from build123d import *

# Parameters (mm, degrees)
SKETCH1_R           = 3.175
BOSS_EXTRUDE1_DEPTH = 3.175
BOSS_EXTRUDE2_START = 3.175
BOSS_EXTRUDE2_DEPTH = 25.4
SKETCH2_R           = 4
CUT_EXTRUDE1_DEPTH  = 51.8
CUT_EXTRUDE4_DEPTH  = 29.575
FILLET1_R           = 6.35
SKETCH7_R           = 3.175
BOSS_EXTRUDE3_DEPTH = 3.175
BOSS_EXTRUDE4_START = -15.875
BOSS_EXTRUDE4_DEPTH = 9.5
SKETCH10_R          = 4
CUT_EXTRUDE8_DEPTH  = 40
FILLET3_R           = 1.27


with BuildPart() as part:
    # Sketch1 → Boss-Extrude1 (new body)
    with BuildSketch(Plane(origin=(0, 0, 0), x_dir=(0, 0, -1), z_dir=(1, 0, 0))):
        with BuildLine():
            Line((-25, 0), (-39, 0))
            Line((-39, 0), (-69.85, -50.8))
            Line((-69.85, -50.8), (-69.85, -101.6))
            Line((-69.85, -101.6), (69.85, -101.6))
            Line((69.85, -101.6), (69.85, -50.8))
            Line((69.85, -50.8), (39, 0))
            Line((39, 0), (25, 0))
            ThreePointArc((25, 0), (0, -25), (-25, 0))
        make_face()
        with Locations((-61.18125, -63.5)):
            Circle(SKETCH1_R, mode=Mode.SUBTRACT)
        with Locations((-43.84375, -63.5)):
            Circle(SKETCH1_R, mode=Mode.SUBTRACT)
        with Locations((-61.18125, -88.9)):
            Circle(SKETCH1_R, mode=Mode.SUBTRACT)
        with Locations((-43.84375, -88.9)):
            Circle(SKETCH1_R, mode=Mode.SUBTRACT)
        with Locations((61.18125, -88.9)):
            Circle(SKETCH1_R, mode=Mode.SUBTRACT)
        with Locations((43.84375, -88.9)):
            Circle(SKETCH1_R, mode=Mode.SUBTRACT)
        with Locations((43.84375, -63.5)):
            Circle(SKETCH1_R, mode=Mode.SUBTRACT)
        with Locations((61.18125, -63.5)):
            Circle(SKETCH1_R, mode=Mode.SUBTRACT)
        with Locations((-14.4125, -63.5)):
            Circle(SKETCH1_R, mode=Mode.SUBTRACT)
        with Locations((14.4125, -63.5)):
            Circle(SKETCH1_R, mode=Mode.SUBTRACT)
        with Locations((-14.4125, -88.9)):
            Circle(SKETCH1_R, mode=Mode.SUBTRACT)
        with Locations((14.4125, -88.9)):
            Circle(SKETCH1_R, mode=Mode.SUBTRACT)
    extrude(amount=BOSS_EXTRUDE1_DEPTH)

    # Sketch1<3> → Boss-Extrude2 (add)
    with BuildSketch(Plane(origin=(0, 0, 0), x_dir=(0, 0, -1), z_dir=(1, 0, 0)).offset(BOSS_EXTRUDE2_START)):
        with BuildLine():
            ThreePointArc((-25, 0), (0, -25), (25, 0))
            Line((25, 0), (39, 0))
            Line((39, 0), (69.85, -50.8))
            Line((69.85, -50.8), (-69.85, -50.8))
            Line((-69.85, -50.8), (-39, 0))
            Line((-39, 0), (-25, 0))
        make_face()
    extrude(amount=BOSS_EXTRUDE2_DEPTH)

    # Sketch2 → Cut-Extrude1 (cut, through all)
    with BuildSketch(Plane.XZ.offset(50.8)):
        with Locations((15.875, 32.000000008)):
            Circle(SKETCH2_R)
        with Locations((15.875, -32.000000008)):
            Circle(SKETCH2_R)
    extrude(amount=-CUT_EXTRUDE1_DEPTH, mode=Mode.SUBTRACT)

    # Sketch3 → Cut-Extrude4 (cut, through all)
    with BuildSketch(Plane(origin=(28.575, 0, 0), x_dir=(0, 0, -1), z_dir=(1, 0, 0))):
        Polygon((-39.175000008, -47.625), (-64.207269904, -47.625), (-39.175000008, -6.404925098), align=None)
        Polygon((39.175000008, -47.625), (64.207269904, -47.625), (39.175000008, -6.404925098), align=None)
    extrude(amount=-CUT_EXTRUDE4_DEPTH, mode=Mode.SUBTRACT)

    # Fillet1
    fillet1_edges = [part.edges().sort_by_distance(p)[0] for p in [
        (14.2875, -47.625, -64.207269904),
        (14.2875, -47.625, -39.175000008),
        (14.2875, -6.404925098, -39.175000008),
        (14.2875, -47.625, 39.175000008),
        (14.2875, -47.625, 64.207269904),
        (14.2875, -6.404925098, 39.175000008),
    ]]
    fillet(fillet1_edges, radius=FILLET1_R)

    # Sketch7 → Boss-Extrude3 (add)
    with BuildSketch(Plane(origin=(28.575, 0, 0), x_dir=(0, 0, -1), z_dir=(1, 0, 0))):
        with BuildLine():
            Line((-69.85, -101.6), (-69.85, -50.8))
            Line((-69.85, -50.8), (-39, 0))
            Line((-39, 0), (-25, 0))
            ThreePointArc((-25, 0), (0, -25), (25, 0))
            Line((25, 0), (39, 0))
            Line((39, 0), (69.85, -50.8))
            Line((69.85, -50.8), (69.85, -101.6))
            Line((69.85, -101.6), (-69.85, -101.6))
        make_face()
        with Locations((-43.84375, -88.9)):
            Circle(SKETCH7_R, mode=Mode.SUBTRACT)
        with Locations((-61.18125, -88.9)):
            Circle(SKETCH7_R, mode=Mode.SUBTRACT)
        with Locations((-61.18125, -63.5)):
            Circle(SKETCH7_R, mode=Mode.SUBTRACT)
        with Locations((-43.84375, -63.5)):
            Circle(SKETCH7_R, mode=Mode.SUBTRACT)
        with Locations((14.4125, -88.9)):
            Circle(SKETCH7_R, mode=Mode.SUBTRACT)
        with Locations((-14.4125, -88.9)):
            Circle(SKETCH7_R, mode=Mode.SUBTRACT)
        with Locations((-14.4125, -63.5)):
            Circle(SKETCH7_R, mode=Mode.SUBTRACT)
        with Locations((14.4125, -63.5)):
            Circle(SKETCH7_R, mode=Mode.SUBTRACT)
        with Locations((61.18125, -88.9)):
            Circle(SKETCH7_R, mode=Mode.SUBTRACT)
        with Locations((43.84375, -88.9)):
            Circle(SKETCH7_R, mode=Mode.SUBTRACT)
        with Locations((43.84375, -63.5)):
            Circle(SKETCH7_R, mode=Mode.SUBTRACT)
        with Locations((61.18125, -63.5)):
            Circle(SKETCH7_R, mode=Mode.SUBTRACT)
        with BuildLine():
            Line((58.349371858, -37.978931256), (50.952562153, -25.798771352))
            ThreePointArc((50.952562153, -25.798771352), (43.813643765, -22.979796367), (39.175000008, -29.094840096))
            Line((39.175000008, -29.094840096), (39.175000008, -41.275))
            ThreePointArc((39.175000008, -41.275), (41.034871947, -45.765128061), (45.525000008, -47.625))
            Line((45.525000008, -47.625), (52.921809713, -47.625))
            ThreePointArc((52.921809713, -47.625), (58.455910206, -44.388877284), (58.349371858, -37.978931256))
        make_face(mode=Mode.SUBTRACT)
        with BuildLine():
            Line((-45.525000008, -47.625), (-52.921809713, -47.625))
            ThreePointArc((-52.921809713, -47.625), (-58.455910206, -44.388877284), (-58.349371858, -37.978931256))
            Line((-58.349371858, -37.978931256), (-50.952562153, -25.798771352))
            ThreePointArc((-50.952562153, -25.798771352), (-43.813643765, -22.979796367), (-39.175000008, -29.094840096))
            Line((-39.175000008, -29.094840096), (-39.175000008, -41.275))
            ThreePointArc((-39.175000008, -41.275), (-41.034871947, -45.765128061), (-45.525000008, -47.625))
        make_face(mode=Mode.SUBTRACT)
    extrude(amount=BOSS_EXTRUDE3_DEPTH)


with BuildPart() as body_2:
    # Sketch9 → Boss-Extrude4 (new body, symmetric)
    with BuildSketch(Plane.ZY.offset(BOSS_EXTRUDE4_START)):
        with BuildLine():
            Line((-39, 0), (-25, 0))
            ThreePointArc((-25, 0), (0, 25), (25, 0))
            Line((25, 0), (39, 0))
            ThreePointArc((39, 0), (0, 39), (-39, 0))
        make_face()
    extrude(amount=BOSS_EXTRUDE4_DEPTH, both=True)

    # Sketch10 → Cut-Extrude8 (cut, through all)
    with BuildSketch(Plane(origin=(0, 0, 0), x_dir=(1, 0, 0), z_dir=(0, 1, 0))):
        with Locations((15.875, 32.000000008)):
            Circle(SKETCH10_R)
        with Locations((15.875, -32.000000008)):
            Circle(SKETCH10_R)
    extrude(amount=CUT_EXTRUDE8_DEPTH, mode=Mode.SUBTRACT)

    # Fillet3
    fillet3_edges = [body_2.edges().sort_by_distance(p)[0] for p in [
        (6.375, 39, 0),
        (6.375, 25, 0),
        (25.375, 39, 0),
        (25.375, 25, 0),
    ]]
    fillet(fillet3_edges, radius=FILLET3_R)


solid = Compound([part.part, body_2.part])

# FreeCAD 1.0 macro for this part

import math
import FreeCAD as App
import Part
import Sketcher

V = App.Vector


def edges_at(feature, points):
    """Names of the edges that pass closest to the given points."""
    edges = feature.Shape.Edges
    near = lambda p: min(range(len(edges)), key=lambda i: edges[i].distToShape(Part.Vertex(*p))[0])
    return sorted({f"Edge{near(p) + 1}" for p in points})

doc = App.newDocument("Part")
body = doc.addObject("PartDesign::Body", "Body")

# Sketch on YZ plane
sketch1 = body.newObject("Sketcher::SketchObject", "Sketch")
sketch1.AttachmentSupport = (doc.getObject("YZ_Plane"), [""])
sketch1.MapMode = "FlatFace"
sketch1.addGeometry([
    Part.LineSegment(V(0, 25, 0), V(0, 39, 0)),  # 0
    Part.LineSegment(V(0, 39, 0), V(-50.8, 69.8, 0)),  # 1
    Part.LineSegment(V(-50.8, 69.8, 0), V(-101.6, 69.8, 0)),  # 2
    Part.LineSegment(V(-101.6, 69.8, 0), V(-101.6, -69.8, 0)),  # 3
    Part.LineSegment(V(-101.6, -69.8, 0), V(-50.8, -69.8, 0)),  # 4
    Part.LineSegment(V(-50.8, -69.8, 0), V(0, -39, 0)),  # 5
    Part.LineSegment(V(0, -39, 0), V(0, -25, 0)),  # 6
    Part.ArcOfCircle(Part.Circle(V(0, 0, 0), V(0, 0, 1), 25), math.radians(90), math.radians(270)),  # 7
    Part.Circle(V(-88.9, 61.2, 0), V(0, 0, 1), 3.2),  # 8
    Part.Circle(V(-88.9, 43.8, 0), V(0, 0, 1), 3.2),  # 9
    Part.Circle(V(-88.9, 14.4, 0), V(0, 0, 1), 3.2),  # 10
    Part.Circle(V(-88.9, -14.4, 0), V(0, 0, 1), 3.2),  # 11
    Part.Circle(V(-88.9, -43.8, 0), V(0, 0, 1), 3.2),  # 12
    Part.Circle(V(-88.9, -61.2, 0), V(0, 0, 1), 3.2),  # 13
    Part.Circle(V(-63.5, 61.2, 0), V(0, 0, 1), 3.2),  # 14
    Part.Circle(V(-63.5, 43.8, 0), V(0, 0, 1), 3.2),  # 15
    Part.Circle(V(-63.5, 14.4, 0), V(0, 0, 1), 3.2),  # 16
    Part.Circle(V(-63.5, -14.4, 0), V(0, 0, 1), 3.2),  # 17
    Part.Circle(V(-63.5, -43.8, 0), V(0, 0, 1), 3.2),  # 18
    Part.Circle(V(-63.5, -61.2, 0), V(0, 0, 1), 3.2),  # 19
], False)
sketch1.addConstraint([
    Sketcher.Constraint("Coincident", 0, 2, 1, 1),
    Sketcher.Constraint("Coincident", 1, 2, 2, 1),
    Sketcher.Constraint("Coincident", 2, 2, 3, 1),
    Sketcher.Constraint("Coincident", 3, 2, 4, 1),
    Sketcher.Constraint("Coincident", 4, 2, 5, 1),
    Sketcher.Constraint("Coincident", 5, 2, 6, 1),
    Sketcher.Constraint("Coincident", 6, 2, 7, 2),
    Sketcher.Constraint("Coincident", 7, 1, 0, 1),
    Sketcher.Constraint("Vertical", 0),
    Sketcher.Constraint("Horizontal", 2),
    Sketcher.Constraint("Vertical", 3),
    Sketcher.Constraint("Horizontal", 4),
    Sketcher.Constraint("Vertical", 6),
    Sketcher.Constraint("Coincident", 7, 3, -1, 1),
    Sketcher.Constraint("Equal", 8, 9),
    Sketcher.Constraint("Equal", 9, 10),
    Sketcher.Constraint("Equal", 10, 11),
    Sketcher.Constraint("Equal", 11, 12),
    Sketcher.Constraint("Equal", 12, 13),
    Sketcher.Constraint("Equal", 13, 14),
    Sketcher.Constraint("Equal", 14, 15),
    Sketcher.Constraint("Equal", 15, 16),
    Sketcher.Constraint("Equal", 16, 17),
    Sketcher.Constraint("Equal", 17, 18),
    Sketcher.Constraint("Equal", 18, 19),
    Sketcher.Constraint("Symmetric", 0, 2, 5, 2, -1, 1),
    Sketcher.Constraint("Symmetric", 10, 3, 11, 3, -1),
    Sketcher.Constraint("Symmetric", 9, 3, 12, 3, -1),
    Sketcher.Constraint("Symmetric", 8, 3, 13, 3, -1),
    Sketcher.Constraint("Symmetric", 16, 3, 17, 3, -1),
    Sketcher.Constraint("Symmetric", 15, 3, 18, 3, -1),
    Sketcher.Constraint("Symmetric", 14, 3, 19, 3, -1),
    Sketcher.Constraint("Symmetric", 1, 2, 4, 2, -1),
    Sketcher.Constraint("PointOnObject", 0, 2, -2),
    Sketcher.Constraint("Horizontal", 8, 3, 14, 3),
    Sketcher.Constraint("Horizontal", 9, 3, 15, 3),
    Sketcher.Constraint("Horizontal", 10, 3, 16, 3),
    Sketcher.Constraint("Vertical", 8, 3, 9, 3),
    Sketcher.Constraint("Vertical", 9, 3, 10, 3),
    Sketcher.Constraint("Vertical", 14, 3, 15, 3),
    Sketcher.Constraint("Vertical", 15, 3, 16, 3),
    Sketcher.Constraint("Radius", 7, 25.0),
    Sketcher.Constraint("Diameter", 8, 6.35),
    Sketcher.Constraint("DistanceY", 0, 1, 0, 2, 14.0),
    Sketcher.Constraint("DistanceX", 2, 2, 2, 1, 50.8),
    Sketcher.Constraint("DistanceY", 3, 2, 3, 1, 139.7),
    Sketcher.Constraint("DistanceX", 8, 3, -1, 1, 88.9),
    Sketcher.Constraint("DistanceX", 14, 3, -1, 1, 63.5),
    Sketcher.Constraint("DistanceX", 1, 2, -1, 1, 50.8),
    Sketcher.Constraint("DistanceY", 11, 3, 10, 3, 28.825),
    Sketcher.Constraint("DistanceY", 12, 3, 8, 3, 105.025),
    Sketcher.Constraint("DistanceY", 9, 3, 8, 3, 17.3375),
])
pad1 = body.newObject("PartDesign::Pad", "Pad")
pad1.Profile = sketch1
pad1.Length = 3.175

# Sketch on YZ plane
sketch2 = body.newObject("Sketcher::SketchObject", "Sketch001")
sketch2.AttachmentSupport = (doc.getObject("YZ_Plane"), [""])
sketch2.MapMode = "FlatFace"
sketch2.AttachmentOffset = App.Placement(V(0, 0, 3.175), App.Rotation())
sketch2.addGeometry([
    Part.ArcOfCircle(Part.Circle(V(0, 0, 0), V(0, 0, 1), 25), math.radians(90), math.radians(270)),  # 0
    Part.LineSegment(V(0, 25, 0), V(0, 39, 0)),  # 1
    Part.LineSegment(V(0, 39, 0), V(-51, 70, 0)),  # 2
    Part.LineSegment(V(-51, 70, 0), V(-51, -70, 0)),  # 3
    Part.LineSegment(V(-51, -70, 0), V(0, -39, 0)),  # 4
    Part.LineSegment(V(0, -39, 0), V(0, -25, 0)),  # 5
], False)
sketch2.addConstraint([
    Sketcher.Constraint("Coincident", 0, 1, 1, 1),
    Sketcher.Constraint("Coincident", 1, 2, 2, 1),
    Sketcher.Constraint("Coincident", 2, 2, 3, 1),
    Sketcher.Constraint("Coincident", 3, 2, 4, 1),
    Sketcher.Constraint("Coincident", 4, 2, 5, 1),
    Sketcher.Constraint("Coincident", 5, 2, 0, 2),
    Sketcher.Constraint("Vertical", 1),
    Sketcher.Constraint("Vertical", 3),
    Sketcher.Constraint("Vertical", 5),
    Sketcher.Constraint("Coincident", 0, 3, -1, 1),
    Sketcher.Constraint("Symmetric", 1, 2, 4, 2, -1, 1),
    Sketcher.Constraint("PointOnObject", 0, 1, -2),
    Sketcher.Constraint("Equal", 2, 4),
    Sketcher.Constraint("Radius", 0, 25.0),
    Sketcher.Constraint("DistanceY", 1, 1, 1, 2, 14.0),
    Sketcher.Constraint("DistanceY", 3, 2, 3, 1, 139.7),
    Sketcher.Constraint("DistanceX", 2, 2, -1, 1, 50.8),
])
pad2 = body.newObject("PartDesign::Pad", "Pad001")
pad2.Profile = sketch2
pad2.Length = 25.4

# Sketch on XZ plane
sketch3 = body.newObject("Sketcher::SketchObject", "Sketch002")
sketch3.AttachmentSupport = (doc.getObject("XZ_Plane"), [""])
sketch3.MapMode = "FlatFace"
sketch3.AttachmentOffset = App.Placement(V(0, 0, 50.8), App.Rotation())
sketch3.addGeometry([
    Part.Circle(V(15.9, 32, 0), V(0, 0, 1), 4),
    Part.Circle(V(15.9, -32, 0), V(0, 0, 1), 4),
], False)
sketch3.addConstraint([
    Sketcher.Constraint("Equal", 0, 1),
    Sketcher.Constraint("Symmetric", 0, 3, 1, 3, -1),
    Sketcher.Constraint("Diameter", 0, 8.0),
    Sketcher.Constraint("DistanceY", -1, 1, 0, 3, 32.0),
    Sketcher.Constraint("DistanceX", -1, 1, 0, 3, 15.875),
])
pocket1 = body.newObject("PartDesign::Pocket", "Pocket")
pocket1.Profile = sketch3
pocket1.Type = "ThroughAll"

# Sketch on YZ plane
sketch4 = body.newObject("Sketcher::SketchObject", "Sketch003")
sketch4.AttachmentSupport = (doc.getObject("YZ_Plane"), [""])
sketch4.MapMode = "FlatFace"
sketch4.AttachmentOffset = App.Placement(V(0, 0, 28.575), App.Rotation())
sketch4.addGeometry([
    Part.LineSegment(V(-48, 64, 0), V(-48, 39, 0)),  # 0
    Part.LineSegment(V(-48, 39, 0), V(-6, 39, 0)),  # 1
    Part.LineSegment(V(-6, 39, 0), V(-48, 64, 0)),  # 2
    Part.LineSegment(V(-48, -39, 0), V(-48, -64, 0)),  # 3
    Part.LineSegment(V(-48, -64, 0), V(-6, -39, 0)),  # 4
    Part.LineSegment(V(-6, -39, 0), V(-48, -39, 0)),  # 5
], False)
sketch4.addConstraint([
    Sketcher.Constraint("Coincident", 0, 2, 1, 1),
    Sketcher.Constraint("Coincident", 1, 2, 2, 1),
    Sketcher.Constraint("Coincident", 2, 2, 0, 1),
    Sketcher.Constraint("Coincident", 3, 2, 4, 1),
    Sketcher.Constraint("Coincident", 4, 2, 5, 1),
    Sketcher.Constraint("Coincident", 5, 2, 3, 1),
    Sketcher.Constraint("Vertical", 0),
    Sketcher.Constraint("Horizontal", 1),
    Sketcher.Constraint("Vertical", 3),
    Sketcher.Constraint("Horizontal", 5),
    Sketcher.Constraint("Symmetric", 2, 2, 3, 2, -1),
    Sketcher.Constraint("Symmetric", 1, 2, 4, 2, -1),
    Sketcher.Constraint("DistanceY", 4, 2, 1, 2, 78.35),
    Sketcher.Constraint("DistanceX", 0, 2, -1, 1, 47.625),
    Sketcher.Constraint("DistanceY", 0, 2, 0, 1, 25.03227),
    Sketcher.Constraint("DistanceX", 1, 1, 1, 2, 41.220075),
])
pocket2 = body.newObject("PartDesign::Pocket", "Pocket001")
pocket2.Profile = sketch4
pocket2.Type = "ThroughAll"
doc.recompute()

fillet = body.newObject("PartDesign::Fillet", "Fillet")
fillet.Base = (pocket2, edges_at(pocket2, [
    (14.287, -47.625, -64.207),
    (14.287, -47.625, -39.175),
    (14.287, -6.405, -39.175),
    (14.287, -47.625, 39.175),
    (14.287, -47.625, 64.207),
    (14.287, -6.405, 39.175),
]))
fillet.Radius = 6.35

# Sketch on YZ plane
sketch5 = body.newObject("Sketcher::SketchObject", "Sketch004")
sketch5.AttachmentSupport = (doc.getObject("YZ_Plane"), [""])
sketch5.MapMode = "FlatFace"
sketch5.AttachmentOffset = App.Placement(V(0, 0, 28.575), App.Rotation())
sketch5.addGeometry([
    Part.LineSegment(V(-50.8, 69.8, 0), V(-101.6, 69.8, 0)),  # 0
    Part.LineSegment(V(-101.6, 69.8, 0), V(-101.6, -69.8, 0)),  # 1
    Part.LineSegment(V(-101.6, -69.8, 0), V(-50.8, -69.8, 0)),  # 2
    Part.LineSegment(V(-50.8, -69.8, 0), V(0, -39, 0)),  # 3
    Part.LineSegment(V(0, -39, 0), V(0, -25, 0)),  # 4
    Part.ArcOfCircle(Part.Circle(V(0, 0, 0), V(0, 0, 1), 25), math.radians(90), math.radians(270)),  # 5
    Part.LineSegment(V(0, 25, 0), V(0, 39, 0)),  # 6
    Part.LineSegment(V(0, 39, 0), V(-50.8, 69.8, 0)),  # 7
    Part.Circle(V(-88.9, -61.2, 0), V(0, 0, 1), 3.2),  # 8
    Part.Circle(V(-88.9, -43.8, 0), V(0, 0, 1), 3.2),  # 9
    Part.Circle(V(-88.9, -14.4, 0), V(0, 0, 1), 3.2),  # 10
    Part.Circle(V(-63.5, -61.2, 0), V(0, 0, 1), 3.2),  # 11
    Part.Circle(V(-63.5, -43.8, 0), V(0, 0, 1), 3.2),  # 12
    Part.Circle(V(-63.5, -14.4, 0), V(0, 0, 1), 3.2),  # 13
    Part.Circle(V(-88.9, 14.4, 0), V(0, 0, 1), 3.2),  # 14
    Part.Circle(V(-88.9, 43.8, 0), V(0, 0, 1), 3.2),  # 15
    Part.Circle(V(-88.9, 61.2, 0), V(0, 0, 1), 3.2),  # 16
    Part.Circle(V(-63.5, 14.4, 0), V(0, 0, 1), 3.2),  # 17
    Part.Circle(V(-63.5, 43.8, 0), V(0, 0, 1), 3.2),  # 18
    Part.Circle(V(-63.5, 61.2, 0), V(0, 0, 1), 3.2),  # 19
    Part.ArcOfCircle(Part.Circle(V(-41.3, -52.9, 0), V(0, 0, 1), 6.3), math.radians(180), math.radians(301)),  # 20
    Part.LineSegment(V(-47.6, -52.9, 0), V(-47.6, -45.5, 0)),  # 21
    Part.ArcOfCircle(Part.Circle(V(-41.3, -45.5, 0), V(0, 0, 1), 6.3), math.radians(90), math.radians(180)),  # 22
    Part.LineSegment(V(-41.3, -39.2, 0), V(-29.1, -39.2, 0)),  # 23
    Part.ArcOfCircle(Part.Circle(V(-29.1, -45.5, 0), V(0, 0, 1), 6.3), math.radians(-59), math.radians(90)),  # 24
    Part.LineSegment(V(-25.8, -51, 0), V(-38, -58.3, 0)),  # 25
    Part.LineSegment(V(-47.6, 45.5, 0), V(-47.6, 52.9, 0)),  # 26
    Part.ArcOfCircle(Part.Circle(V(-41.3, 52.9, 0), V(0, 0, 1), 6.3), math.radians(59), math.radians(180)),  # 27
    Part.LineSegment(V(-38, 58.3, 0), V(-25.8, 51, 0)),  # 28
    Part.ArcOfCircle(Part.Circle(V(-29.1, 45.5, 0), V(0, 0, 1), 6.3), math.radians(-90), math.radians(59)),  # 29
    Part.LineSegment(V(-29.1, 39.2, 0), V(-41.3, 39.2, 0)),  # 30
    Part.ArcOfCircle(Part.Circle(V(-41.3, 45.5, 0), V(0, 0, 1), 6.3), math.radians(180), math.radians(270)),  # 31
], False)
sketch5.addConstraint([
    Sketcher.Constraint("Coincident", 0, 2, 1, 1),
    Sketcher.Constraint("Coincident", 1, 2, 2, 1),
    Sketcher.Constraint("Coincident", 2, 2, 3, 1),
    Sketcher.Constraint("Coincident", 3, 2, 4, 1),
    Sketcher.Constraint("Coincident", 4, 2, 5, 2),
    Sketcher.Constraint("Coincident", 5, 1, 6, 1),
    Sketcher.Constraint("Coincident", 6, 2, 7, 1),
    Sketcher.Constraint("Coincident", 7, 2, 0, 1),
    Sketcher.Constraint("Tangent", 20, 1, 21, 1),
    Sketcher.Constraint("Tangent", 21, 2, 22, 2),
    Sketcher.Constraint("Tangent", 22, 1, 23, 1),
    Sketcher.Constraint("Tangent", 23, 2, 24, 2),
    Sketcher.Constraint("Tangent", 24, 1, 25, 1),
    Sketcher.Constraint("Tangent", 25, 2, 20, 2),
    Sketcher.Constraint("Tangent", 26, 2, 27, 2),
    Sketcher.Constraint("Tangent", 27, 1, 28, 1),
    Sketcher.Constraint("Tangent", 28, 2, 29, 2),
    Sketcher.Constraint("Tangent", 29, 1, 30, 1),
    Sketcher.Constraint("Tangent", 30, 2, 31, 2),
    Sketcher.Constraint("Tangent", 31, 1, 26, 1),
    Sketcher.Constraint("Horizontal", 0),
    Sketcher.Constraint("Vertical", 1),
    Sketcher.Constraint("Horizontal", 2),
    Sketcher.Constraint("Vertical", 4),
    Sketcher.Constraint("Vertical", 6),
    Sketcher.Constraint("Vertical", 21),
    Sketcher.Constraint("Horizontal", 23),
    Sketcher.Constraint("Vertical", 26),
    Sketcher.Constraint("Horizontal", 30),
    Sketcher.Constraint("Coincident", 5, 3, -1, 1),
    Sketcher.Constraint("Equal", 8, 9),
    Sketcher.Constraint("Equal", 9, 10),
    Sketcher.Constraint("Equal", 10, 11),
    Sketcher.Constraint("Equal", 11, 12),
    Sketcher.Constraint("Equal", 12, 13),
    Sketcher.Constraint("Equal", 13, 14),
    Sketcher.Constraint("Equal", 14, 15),
    Sketcher.Constraint("Equal", 15, 16),
    Sketcher.Constraint("Equal", 16, 17),
    Sketcher.Constraint("Equal", 17, 18),
    Sketcher.Constraint("Equal", 18, 19),
    Sketcher.Constraint("Equal", 20, 22),
    Sketcher.Constraint("Equal", 22, 24),
    Sketcher.Constraint("Equal", 24, 27),
    Sketcher.Constraint("Equal", 27, 29),
    Sketcher.Constraint("Equal", 29, 31),
    Sketcher.Constraint("Symmetric", 3, 2, 6, 2, -1, 1),
    Sketcher.Constraint("Symmetric", 10, 3, 14, 3, -1),
    Sketcher.Constraint("Symmetric", 9, 3, 15, 3, -1),
    Sketcher.Constraint("Symmetric", 8, 3, 16, 3, -1),
    Sketcher.Constraint("Symmetric", 13, 3, 17, 3, -1),
    Sketcher.Constraint("Symmetric", 12, 3, 18, 3, -1),
    Sketcher.Constraint("Symmetric", 11, 3, 19, 3, -1),
    Sketcher.Constraint("Symmetric", 20, 3, 27, 3, -1),
    Sketcher.Constraint("Symmetric", 24, 3, 29, 3, -1),
    Sketcher.Constraint("Symmetric", 2, 2, 7, 2, -1),
    Sketcher.Constraint("PointOnObject", 3, 2, -2),
    Sketcher.Constraint("Parallel", 3, 25),
    Sketcher.Constraint("Horizontal", 8, 3, 11, 3),
    Sketcher.Constraint("Horizontal", 9, 3, 12, 3),
    Sketcher.Constraint("Horizontal", 10, 3, 13, 3),
    Sketcher.Constraint("Vertical", 8, 3, 9, 3),
    Sketcher.Constraint("Vertical", 9, 3, 10, 3),
    Sketcher.Constraint("Vertical", 11, 3, 12, 3),
    Sketcher.Constraint("Vertical", 12, 3, 13, 3),
    Sketcher.Constraint("Radius", 5, 25.0),
    Sketcher.Constraint("Diameter", 8, 6.35),
    Sketcher.Constraint("DistanceY", 4, 1, 4, 2, 14.0),
    Sketcher.Constraint("Radius", 20, 6.35),
    Sketcher.Constraint("DistanceX", 0, 2, 0, 1, 50.8),
    Sketcher.Constraint("DistanceY", 1, 2, 1, 1, 139.7),
    Sketcher.Constraint("DistanceX", 8, 3, -1, 1, 88.9),
    Sketcher.Constraint("DistanceX", 11, 3, -1, 1, 63.5),
    Sketcher.Constraint("DistanceX", 0, 2, -1, 1, 101.6),
    Sketcher.Constraint("DistanceX", 20, 3, -1, 1, 41.275),
    Sketcher.Constraint("DistanceY", 22, 3, -1, 1, 45.525),
    Sketcher.Constraint("DistanceY", 10, 3, 14, 3, 28.825),
    Sketcher.Constraint("DistanceY", 9, 3, 16, 3, 105.025),
    Sketcher.Constraint("DistanceX", 23, 1, 23, 2, 12.18016),
    Sketcher.Constraint("DistanceY", 8, 3, 9, 3, 17.3375),
])
pad3 = body.newObject("PartDesign::Pad", "Pad002")
pad3.Profile = sketch5
pad3.Length = 3.175
body2 = doc.addObject("PartDesign::Body", "Body001")

# Sketch on YZ plane
sketch6 = body2.newObject("Sketcher::SketchObject", "Sketch005")
sketch6.AttachmentSupport = (doc.getObject("YZ_Plane001"), [""])
sketch6.MapMode = "FlatFace"
sketch6.AttachmentOffset = App.Placement(V(0, 0, 15.875), App.Rotation())
sketch6.addGeometry([
    Part.LineSegment(V(0, -39, 0), V(0, -25, 0)),
    Part.ArcOfCircle(Part.Circle(V(0, 0, 0), V(0, 0, 1), 25), math.radians(-90), math.radians(90)),
    Part.LineSegment(V(0, 25, 0), V(0, 39, 0)),
    Part.ArcOfCircle(Part.Circle(V(0, 0, 0), V(0, 0, 1), 39), math.radians(-90), math.radians(90)),
], False)
sketch6.addConstraint([
    Sketcher.Constraint("Coincident", 0, 2, 1, 1),
    Sketcher.Constraint("Coincident", 1, 2, 2, 1),
    Sketcher.Constraint("Coincident", 2, 2, 3, 2),
    Sketcher.Constraint("Coincident", 3, 1, 0, 1),
    Sketcher.Constraint("Vertical", 0),
    Sketcher.Constraint("Vertical", 2),
    Sketcher.Constraint("Coincident", 1, 3, -1, 1),
    Sketcher.Constraint("Coincident", 3, 3, -1, 1),
    Sketcher.Constraint("PointOnObject", 0, 2, -2),
    Sketcher.Constraint("PointOnObject", 1, 2, -2),
    Sketcher.Constraint("Radius", 1, 25.0),
    Sketcher.Constraint("Radius", 3, 39.0),
])
pad4 = body2.newObject("PartDesign::Pad", "Pad003")
pad4.Profile = sketch6
pad4.Length = 19
pad4.Midplane = True

# Sketch on XZ plane
sketch7 = body2.newObject("Sketcher::SketchObject", "Sketch006")
sketch7.AttachmentSupport = (doc.getObject("XZ_Plane001"), [""])
sketch7.MapMode = "FlatFace"
sketch7.addGeometry([
    Part.Circle(V(15.9, -32, 0), V(0, 0, 1), 4),
    Part.Circle(V(15.9, 32, 0), V(0, 0, 1), 4),
], False)
sketch7.addConstraint([
    Sketcher.Constraint("Equal", 0, 1),
    Sketcher.Constraint("Symmetric", 0, 3, 1, 3, -1),
    Sketcher.Constraint("Diameter", 0, 8.0),
    Sketcher.Constraint("DistanceY", 0, 3, -1, 1, 32.0),
    Sketcher.Constraint("DistanceX", -1, 1, 0, 3, 15.875),
])
pocket3 = body2.newObject("PartDesign::Pocket", "Pocket002")
pocket3.Profile = sketch7
pocket3.Type = "ThroughAll"
doc.recompute()

fillet2 = body2.newObject("PartDesign::Fillet", "Fillet001")
fillet2.Base = (pocket3, edges_at(pocket3, [
    (6.375, 39, 0),
    (6.375, 25, 0),
    (25.375, 39, 0),
    (25.375, 25, 0),
]))
fillet2.Radius = 1.27

doc.recompute()
